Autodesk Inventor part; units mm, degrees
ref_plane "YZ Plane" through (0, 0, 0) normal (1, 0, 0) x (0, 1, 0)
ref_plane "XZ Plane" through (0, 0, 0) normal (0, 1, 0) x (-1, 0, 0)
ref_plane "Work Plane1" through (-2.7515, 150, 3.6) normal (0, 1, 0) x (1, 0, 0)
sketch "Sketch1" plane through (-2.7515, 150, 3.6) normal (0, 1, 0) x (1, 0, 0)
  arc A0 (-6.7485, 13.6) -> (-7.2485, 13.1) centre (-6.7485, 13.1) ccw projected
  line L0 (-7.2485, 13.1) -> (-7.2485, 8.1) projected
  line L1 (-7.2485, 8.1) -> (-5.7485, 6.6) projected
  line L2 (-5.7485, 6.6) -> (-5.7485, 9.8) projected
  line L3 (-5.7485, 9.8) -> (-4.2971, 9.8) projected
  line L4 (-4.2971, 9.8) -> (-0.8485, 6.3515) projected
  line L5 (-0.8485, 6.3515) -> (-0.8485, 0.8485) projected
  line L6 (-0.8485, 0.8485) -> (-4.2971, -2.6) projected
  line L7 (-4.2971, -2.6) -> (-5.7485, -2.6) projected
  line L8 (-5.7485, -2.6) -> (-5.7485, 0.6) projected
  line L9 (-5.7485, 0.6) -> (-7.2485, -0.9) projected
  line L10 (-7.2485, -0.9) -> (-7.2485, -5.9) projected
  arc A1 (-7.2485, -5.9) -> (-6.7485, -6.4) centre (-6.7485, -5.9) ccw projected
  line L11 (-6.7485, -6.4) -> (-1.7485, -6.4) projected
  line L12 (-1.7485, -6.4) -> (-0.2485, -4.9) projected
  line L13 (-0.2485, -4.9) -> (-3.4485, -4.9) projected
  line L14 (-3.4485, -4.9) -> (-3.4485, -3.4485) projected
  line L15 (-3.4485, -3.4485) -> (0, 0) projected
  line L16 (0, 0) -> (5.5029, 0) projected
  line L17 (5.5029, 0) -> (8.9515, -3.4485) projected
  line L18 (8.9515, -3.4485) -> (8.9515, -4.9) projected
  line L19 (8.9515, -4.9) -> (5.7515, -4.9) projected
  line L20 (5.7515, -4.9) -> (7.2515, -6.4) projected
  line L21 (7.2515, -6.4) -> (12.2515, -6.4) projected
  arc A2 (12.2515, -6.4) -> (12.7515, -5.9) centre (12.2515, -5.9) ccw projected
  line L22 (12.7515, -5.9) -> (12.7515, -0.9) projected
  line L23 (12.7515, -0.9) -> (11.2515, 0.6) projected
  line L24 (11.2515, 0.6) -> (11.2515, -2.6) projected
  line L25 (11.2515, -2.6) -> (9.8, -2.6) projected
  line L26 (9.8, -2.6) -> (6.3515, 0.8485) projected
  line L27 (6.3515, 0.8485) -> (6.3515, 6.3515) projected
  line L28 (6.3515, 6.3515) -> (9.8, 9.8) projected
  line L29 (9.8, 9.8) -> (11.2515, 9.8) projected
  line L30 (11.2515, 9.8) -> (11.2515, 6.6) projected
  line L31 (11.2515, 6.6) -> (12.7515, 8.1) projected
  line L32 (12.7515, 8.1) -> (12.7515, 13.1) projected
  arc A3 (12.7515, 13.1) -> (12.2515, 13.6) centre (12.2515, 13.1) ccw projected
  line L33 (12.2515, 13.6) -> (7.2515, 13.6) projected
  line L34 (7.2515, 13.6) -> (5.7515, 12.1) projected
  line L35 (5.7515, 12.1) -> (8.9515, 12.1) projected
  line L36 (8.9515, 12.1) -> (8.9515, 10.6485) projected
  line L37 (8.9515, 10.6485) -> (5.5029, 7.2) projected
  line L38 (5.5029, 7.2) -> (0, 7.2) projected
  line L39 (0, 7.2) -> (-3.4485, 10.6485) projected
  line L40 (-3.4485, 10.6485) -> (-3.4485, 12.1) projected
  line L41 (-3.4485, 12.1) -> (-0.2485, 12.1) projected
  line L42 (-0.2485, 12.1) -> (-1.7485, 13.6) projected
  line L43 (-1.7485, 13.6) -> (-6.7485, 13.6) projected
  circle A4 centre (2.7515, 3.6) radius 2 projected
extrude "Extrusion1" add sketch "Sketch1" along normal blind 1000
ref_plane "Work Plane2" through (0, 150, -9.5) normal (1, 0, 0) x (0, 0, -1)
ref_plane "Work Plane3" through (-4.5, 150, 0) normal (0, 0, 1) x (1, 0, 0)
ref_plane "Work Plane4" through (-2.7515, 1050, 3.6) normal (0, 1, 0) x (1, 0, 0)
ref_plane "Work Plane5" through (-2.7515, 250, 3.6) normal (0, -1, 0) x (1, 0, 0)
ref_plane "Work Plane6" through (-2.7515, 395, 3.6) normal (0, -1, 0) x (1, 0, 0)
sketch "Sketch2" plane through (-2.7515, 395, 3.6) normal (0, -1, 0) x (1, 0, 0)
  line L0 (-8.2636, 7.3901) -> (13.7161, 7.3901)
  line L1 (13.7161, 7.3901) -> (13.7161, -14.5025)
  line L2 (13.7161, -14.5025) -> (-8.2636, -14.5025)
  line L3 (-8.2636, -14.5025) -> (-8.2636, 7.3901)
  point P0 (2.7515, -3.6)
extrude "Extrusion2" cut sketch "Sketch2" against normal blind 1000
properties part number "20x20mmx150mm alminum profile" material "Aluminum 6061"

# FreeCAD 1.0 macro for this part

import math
import FreeCAD as App
import Part
import Sketcher

V = App.Vector


def add_polygon(sketch, points):
    """Adds a closed chain of lines whose ends are joined by coincident constraints."""
    first, n = sketch.GeometryCount, len(points)
    for a, b in zip(points, points[1:] + points[:1]):
        sketch.addGeometry(Part.LineSegment(App.Vector(*a, 0), App.Vector(*b, 0)), False)
    for i in range(n):
        sketch.addConstraint(Sketcher.Constraint("Coincident", first + i, 2, first + (i + 1) % n, 1))

doc = App.newDocument("Part")
body = doc.addObject("PartDesign::Body", "Body")

sketch1 = body.newObject("Sketcher::SketchObject", "Sketch")
sketch1.AttachmentSupport = (doc.getObject("XZ_Plane"), [""])
sketch1.MapMode = "FlatFace"
sketch1.AttachmentOffset = App.Placement(V(0, 0, -150), App.Rotation())
sketch1.addGeometry(Part.LineSegment(V(-4.5, -10, 0), V(-9.5, -10, 0)), False)
sketch1.addGeometry(Part.ArcOfCircle(Part.Circle(V(-9.5, -9.5, 0), V(0, 0, 1), 0.5), math.radians(180), math.radians(270)), False)
sketch1.addGeometry(Part.LineSegment(V(-10, -9.5, 0), V(-10, -4.5, 0)), False)
sketch1.addGeometry(Part.LineSegment(V(-10, -4.5, 0), V(-8.5, -3, 0)), False)
sketch1.addGeometry(Part.LineSegment(V(-8.5, -3, 0), V(-8.5, -6.2, 0)), False)
sketch1.addGeometry(Part.LineSegment(V(-8.5, -6.2, 0), V(-7, -6.2, 0)), False)
sketch1.addGeometry(Part.LineSegment(V(-7, -6.2, 0), V(-3.6, -2.8, 0)), False)
sketch1.addGeometry(Part.LineSegment(V(-3.6, -2.8, 0), V(-3.6, 2.8, 0)), False)
sketch1.addGeometry(Part.LineSegment(V(-3.6, 2.8, 0), V(-7, 6.2, 0)), False)
sketch1.addGeometry(Part.LineSegment(V(-7, 6.2, 0), V(-8.5, 6.2, 0)), False)
sketch1.addGeometry(Part.LineSegment(V(-8.5, 6.2, 0), V(-8.5, 3, 0)), False)
sketch1.addGeometry(Part.LineSegment(V(-8.5, 3, 0), V(-10, 4.5, 0)), False)
sketch1.addGeometry(Part.LineSegment(V(-10, 4.5, 0), V(-10, 9.5, 0)), False)
sketch1.addGeometry(Part.ArcOfCircle(Part.Circle(V(-9.5, 9.5, 0), V(0, 0, 1), 0.5), math.radians(90), math.radians(180)), False)
sketch1.addGeometry(Part.LineSegment(V(-9.5, 10, 0), V(-4.5, 10, 0)), False)
sketch1.addGeometry(Part.LineSegment(V(-4.5, 10, 0), V(-3, 8.5, 0)), False)
sketch1.addGeometry(Part.LineSegment(V(-3, 8.5, 0), V(-6.2, 8.5, 0)), False)
sketch1.addGeometry(Part.LineSegment(V(-6.2, 8.5, 0), V(-6.2, 7, 0)), False)
sketch1.addGeometry(Part.LineSegment(V(-6.2, 7, 0), V(-2.8, 3.6, 0)), False)
sketch1.addGeometry(Part.LineSegment(V(-2.8, 3.6, 0), V(2.8, 3.6, 0)), False)
sketch1.addGeometry(Part.LineSegment(V(2.8, 3.6, 0), V(6.2, 7, 0)), False)
sketch1.addGeometry(Part.LineSegment(V(6.2, 7, 0), V(6.2, 8.5, 0)), False)
sketch1.addGeometry(Part.LineSegment(V(6.2, 8.5, 0), V(3, 8.5, 0)), False)
sketch1.addGeometry(Part.LineSegment(V(3, 8.5, 0), V(4.5, 10, 0)), False)
sketch1.addGeometry(Part.LineSegment(V(4.5, 10, 0), V(9.5, 10, 0)), False)
sketch1.addGeometry(Part.ArcOfCircle(Part.Circle(V(9.5, 9.5, 0), V(0, 0, 1), 0.5), math.radians(0), math.radians(90)), False)
sketch1.addGeometry(Part.LineSegment(V(10, 9.5, 0), V(10, 4.5, 0)), False)
sketch1.addGeometry(Part.LineSegment(V(10, 4.5, 0), V(8.5, 3, 0)), False)
sketch1.addGeometry(Part.LineSegment(V(8.5, 3, 0), V(8.5, 6.2, 0)), False)
sketch1.addGeometry(Part.LineSegment(V(8.5, 6.2, 0), V(7, 6.2, 0)), False)
sketch1.addGeometry(Part.LineSegment(V(7, 6.2, 0), V(3.6, 2.8, 0)), False)
sketch1.addGeometry(Part.LineSegment(V(3.6, 2.8, 0), V(3.6, -2.8, 0)), False)
sketch1.addGeometry(Part.LineSegment(V(3.6, -2.8, 0), V(7, -6.2, 0)), False)
sketch1.addGeometry(Part.LineSegment(V(7, -6.2, 0), V(8.5, -6.2, 0)), False)
sketch1.addGeometry(Part.LineSegment(V(8.5, -6.2, 0), V(8.5, -3, 0)), False)
sketch1.addGeometry(Part.LineSegment(V(8.5, -3, 0), V(10, -4.5, 0)), False)
sketch1.addGeometry(Part.LineSegment(V(10, -4.5, 0), V(10, -9.5, 0)), False)
sketch1.addGeometry(Part.ArcOfCircle(Part.Circle(V(9.5, -9.5, 0), V(0, 0, 1), 0.5), math.radians(-90), math.radians(0)), False)
sketch1.addGeometry(Part.LineSegment(V(9.5, -10, 0), V(4.5, -10, 0)), False)
sketch1.addGeometry(Part.LineSegment(V(4.5, -10, 0), V(3, -8.5, 0)), False)
sketch1.addGeometry(Part.LineSegment(V(3, -8.5, 0), V(6.2, -8.5, 0)), False)
sketch1.addGeometry(Part.LineSegment(V(6.2, -8.5, 0), V(6.2, -7, 0)), False)
sketch1.addGeometry(Part.LineSegment(V(6.2, -7, 0), V(2.8, -3.6, 0)), False)
sketch1.addGeometry(Part.LineSegment(V(2.8, -3.6, 0), V(-2.8, -3.6, 0)), False)
sketch1.addGeometry(Part.LineSegment(V(-2.8, -3.6, 0), V(-6.2, -7, 0)), False)
sketch1.addGeometry(Part.LineSegment(V(-6.2, -7, 0), V(-6.2, -8.5, 0)), False)
sketch1.addGeometry(Part.LineSegment(V(-6.2, -8.5, 0), V(-3, -8.5, 0)), False)
sketch1.addGeometry(Part.LineSegment(V(-3, -8.5, 0), V(-4.5, -10, 0)), False)
sketch1.addGeometry(Part.Circle(V(0, 0, 0), V(0, 0, 1), 2), False)
sketch1.addConstraint(Sketcher.Constraint("Tangent", 0, 2, 1, 2))
sketch1.addConstraint(Sketcher.Constraint("Tangent", 1, 1, 2, 1))
sketch1.addConstraint(Sketcher.Constraint("Coincident", 2, 2, 3, 1))
sketch1.addConstraint(Sketcher.Constraint("Coincident", 3, 2, 4, 1))
sketch1.addConstraint(Sketcher.Constraint("Coincident", 4, 2, 5, 1))
sketch1.addConstraint(Sketcher.Constraint("Coincident", 5, 2, 6, 1))
sketch1.addConstraint(Sketcher.Constraint("Coincident", 6, 2, 7, 1))
sketch1.addConstraint(Sketcher.Constraint("Coincident", 7, 2, 8, 1))
sketch1.addConstraint(Sketcher.Constraint("Coincident", 8, 2, 9, 1))
sketch1.addConstraint(Sketcher.Constraint("Coincident", 9, 2, 10, 1))
sketch1.addConstraint(Sketcher.Constraint("Coincident", 10, 2, 11, 1))
sketch1.addConstraint(Sketcher.Constraint("Coincident", 11, 2, 12, 1))
sketch1.addConstraint(Sketcher.Constraint("Tangent", 12, 2, 13, 2))
sketch1.addConstraint(Sketcher.Constraint("Tangent", 13, 1, 14, 1))
sketch1.addConstraint(Sketcher.Constraint("Coincident", 14, 2, 15, 1))
sketch1.addConstraint(Sketcher.Constraint("Coincident", 15, 2, 16, 1))
sketch1.addConstraint(Sketcher.Constraint("Coincident", 16, 2, 17, 1))
sketch1.addConstraint(Sketcher.Constraint("Coincident", 17, 2, 18, 1))
sketch1.addConstraint(Sketcher.Constraint("Coincident", 18, 2, 19, 1))
sketch1.addConstraint(Sketcher.Constraint("Coincident", 19, 2, 20, 1))
sketch1.addConstraint(Sketcher.Constraint("Coincident", 20, 2, 21, 1))
sketch1.addConstraint(Sketcher.Constraint("Coincident", 21, 2, 22, 1))
sketch1.addConstraint(Sketcher.Constraint("Coincident", 22, 2, 23, 1))
sketch1.addConstraint(Sketcher.Constraint("Coincident", 23, 2, 24, 1))
sketch1.addConstraint(Sketcher.Constraint("Tangent", 24, 2, 25, 2))
sketch1.addConstraint(Sketcher.Constraint("Tangent", 25, 1, 26, 1))
sketch1.addConstraint(Sketcher.Constraint("Coincident", 26, 2, 27, 1))
sketch1.addConstraint(Sketcher.Constraint("Coincident", 27, 2, 28, 1))
sketch1.addConstraint(Sketcher.Constraint("Coincident", 28, 2, 29, 1))
sketch1.addConstraint(Sketcher.Constraint("Coincident", 29, 2, 30, 1))
sketch1.addConstraint(Sketcher.Constraint("Coincident", 30, 2, 31, 1))
sketch1.addConstraint(Sketcher.Constraint("Coincident", 31, 2, 32, 1))
sketch1.addConstraint(Sketcher.Constraint("Coincident", 32, 2, 33, 1))
sketch1.addConstraint(Sketcher.Constraint("Coincident", 33, 2, 34, 1))
sketch1.addConstraint(Sketcher.Constraint("Coincident", 34, 2, 35, 1))
sketch1.addConstraint(Sketcher.Constraint("Coincident", 35, 2, 36, 1))
sketch1.addConstraint(Sketcher.Constraint("Tangent", 36, 2, 37, 2))
sketch1.addConstraint(Sketcher.Constraint("Tangent", 37, 1, 38, 1))
sketch1.addConstraint(Sketcher.Constraint("Coincident", 38, 2, 39, 1))
sketch1.addConstraint(Sketcher.Constraint("Coincident", 39, 2, 40, 1))
sketch1.addConstraint(Sketcher.Constraint("Coincident", 40, 2, 41, 1))
sketch1.addConstraint(Sketcher.Constraint("Coincident", 41, 2, 42, 1))
sketch1.addConstraint(Sketcher.Constraint("Coincident", 42, 2, 43, 1))
sketch1.addConstraint(Sketcher.Constraint("Coincident", 43, 2, 44, 1))
sketch1.addConstraint(Sketcher.Constraint("Coincident", 44, 2, 45, 1))
sketch1.addConstraint(Sketcher.Constraint("Coincident", 45, 2, 46, 1))
sketch1.addConstraint(Sketcher.Constraint("Coincident", 46, 2, 47, 1))
sketch1.addConstraint(Sketcher.Constraint("Coincident", 47, 2, 0, 1))
sketch1.addConstraint(Sketcher.Constraint("Horizontal", 0))
sketch1.addConstraint(Sketcher.Constraint("Vertical", 2))
sketch1.addConstraint(Sketcher.Constraint("Vertical", 4))
sketch1.addConstraint(Sketcher.Constraint("Horizontal", 5))
sketch1.addConstraint(Sketcher.Constraint("Vertical", 7))
sketch1.addConstraint(Sketcher.Constraint("Horizontal", 9))
sketch1.addConstraint(Sketcher.Constraint("Vertical", 10))
sketch1.addConstraint(Sketcher.Constraint("Vertical", 12))
sketch1.addConstraint(Sketcher.Constraint("Horizontal", 14))
sketch1.addConstraint(Sketcher.Constraint("Horizontal", 16))
sketch1.addConstraint(Sketcher.Constraint("Vertical", 17))
sketch1.addConstraint(Sketcher.Constraint("Horizontal", 19))
sketch1.addConstraint(Sketcher.Constraint("Vertical", 21))
sketch1.addConstraint(Sketcher.Constraint("Horizontal", 22))
sketch1.addConstraint(Sketcher.Constraint("Horizontal", 24))
sketch1.addConstraint(Sketcher.Constraint("Vertical", 26))
sketch1.addConstraint(Sketcher.Constraint("Vertical", 28))
sketch1.addConstraint(Sketcher.Constraint("Horizontal", 29))
sketch1.addConstraint(Sketcher.Constraint("Vertical", 31))
sketch1.addConstraint(Sketcher.Constraint("Horizontal", 33))
sketch1.addConstraint(Sketcher.Constraint("Vertical", 34))
sketch1.addConstraint(Sketcher.Constraint("Vertical", 36))
sketch1.addConstraint(Sketcher.Constraint("Horizontal", 38))
sketch1.addConstraint(Sketcher.Constraint("Horizontal", 40))
sketch1.addConstraint(Sketcher.Constraint("Vertical", 41))
sketch1.addConstraint(Sketcher.Constraint("Horizontal", 43))
sketch1.addConstraint(Sketcher.Constraint("Vertical", 45))
sketch1.addConstraint(Sketcher.Constraint("Horizontal", 46))
sketch1.addConstraint(Sketcher.Constraint("Coincident", 48, 3, -1, 1))
sketch1.addConstraint(Sketcher.Constraint("Equal", 1, 13))
sketch1.addConstraint(Sketcher.Constraint("Equal", 13, 25))
sketch1.addConstraint(Sketcher.Constraint("Equal", 25, 37))
sketch1.addConstraint(Sketcher.Constraint("Symmetric", 1, 3, 25, 3, -1, 1))
sketch1.addConstraint(Sketcher.Constraint("Symmetric", 13, 3, 37, 3, -1, 1))
sketch1.addConstraint(Sketcher.Constraint("Symmetric", 3, 2, 27, 2, -1, 1))
sketch1.addConstraint(Sketcher.Constraint("Symmetric", 5, 2, 29, 2, -1, 1))
sketch1.addConstraint(Sketcher.Constraint("Symmetric", 6, 2, 30, 2, -1, 1))
sketch1.addConstraint(Sketcher.Constraint("Symmetric", 8, 2, 32, 2, -1, 1))
sketch1.addConstraint(Sketcher.Constraint("Symmetric", 10, 2, 34, 2, -1, 1))
sketch1.addConstraint(Sketcher.Constraint("Symmetric", 15, 2, 39, 2, -1, 1))
sketch1.addConstraint(Sketcher.Constraint("Symmetric", 17, 2, 41, 2, -1, 1))
sketch1.addConstraint(Sketcher.Constraint("Symmetric", 18, 2, 42, 2, -1, 1))
sketch1.addConstraint(Sketcher.Constraint("Symmetric", 20, 2, 44, 2, -1, 1))
sketch1.addConstraint(Sketcher.Constraint("Symmetric", 22, 2, 46, 2, -1, 1))
sketch1.addConstraint(Sketcher.Constraint("Symmetric", 13, 3, 25, 3, -2))
sketch1.addConstraint(Sketcher.Constraint("Symmetric", 17, 2, 20, 2, -2))
sketch1.addConstraint(Sketcher.Constraint("Symmetric", 15, 2, 22, 2, -2))
sketch1.addConstraint(Sketcher.Constraint("Symmetric", 10, 2, 27, 2, -2))
sketch1.addConstraint(Sketcher.Constraint("Symmetric", 8, 2, 29, 2, -2))
sketch1.addConstraint(Sketcher.Constraint("Parallel", 3, 6))
sketch1.addConstraint(Sketcher.Constraint("Perpendicular", 6, 8))
sketch1.addConstraint(Sketcher.Constraint("Parallel", 8, 11))
sketch1.addConstraint(Sketcher.Constraint("Parallel", 11, 15))
sketch1.addConstraint(Sketcher.Constraint("Parallel", 15, 18))
sketch1.addConstraint(Sketcher.Constraint("Perpendicular", 18, 20))
sketch1.addConstraint(Sketcher.Constraint("Parallel", 20, 23))
sketch1.addConstraint(Sketcher.Constraint("Parallel", 23, 27))
sketch1.addConstraint(Sketcher.Constraint("Perpendicular", 30, 32))
sketch1.addConstraint(Sketcher.Constraint("Parallel", 32, 35))
sketch1.addConstraint(Sketcher.Constraint("Parallel", 35, 39))
sketch1.addConstraint(Sketcher.Constraint("Perpendicular", 42, 44))
sketch1.addConstraint(Sketcher.Constraint("Parallel", 44, 47))
sketch1.addConstraint(Sketcher.Constraint("Horizontal", 11, 2, 26, 2))
sketch1.addConstraint(Sketcher.Constraint("Equal", 38, 2))
sketch1.addConstraint(Sketcher.Constraint("Equal", 46, 4))
sketch1.addConstraint(Sketcher.Constraint("Equal", 43, 7))
sketch1.addConstraint(Sketcher.Constraint("Equal", 33, 17))
sketch1.addConstraint(Sketcher.Constraint("Equal", 11, 15))
sketch1.addConstraint(Sketcher.Constraint("Equal", 8, 18))
sketch1.addConstraint(Sketcher.Constraint("Diameter", 48, 4.0))
sketch1.addConstraint(Sketcher.Constraint("Radius", 1, 0.5))
sketch1.addConstraint(Sketcher.Constraint("DistanceX", 0, 2, 0, 1, 5.0))
sketch1.addConstraint(Sketcher.Constraint("DistanceX", 16, 2, 16, 1, 3.2))
sketch1.addConstraint(Sketcher.Constraint("DistanceY", 0, 2, -1, 1, 10.0))
sketch1.addConstraint(Sketcher.Constraint("DistanceY", 3, 2, -1, 1, 3.0))
sketch1.addConstraint(Sketcher.Constraint("DistanceX", 6, 2, -1, 1, 3.6))
sketch1.addConstraint(Sketcher.Constraint("DistanceX", 19, 1, 19, 2, 5.503))
pad1 = body.newObject("PartDesign::Pad", "Pad")
pad1.Profile = sketch1
pad1.Length = 1000
pad1.Reversed = True

sketch2 = body.newObject("Sketcher::SketchObject", "Sketch001")
sketch2.AttachmentSupport = (doc.getObject("XZ_Plane"), [""])
sketch2.MapMode = "FlatFace"
sketch2.AttachmentOffset = App.Placement(V(0, 0, -395), App.Rotation())
add_polygon(sketch2, [(11, 11), (-11, 11), (-11, -11), (11, -11)])
sketch2.addConstraint(Sketcher.Constraint("Horizontal", 0))
sketch2.addConstraint(Sketcher.Constraint("Vertical", 1))
sketch2.addConstraint(Sketcher.Constraint("Horizontal", 2))
sketch2.addConstraint(Sketcher.Constraint("Vertical", 3))
sketch2.addConstraint(Sketcher.Constraint("DistanceY", -1, 1, 0, 2, 10.99))
sketch2.addConstraint(Sketcher.Constraint("DistanceX", 0, 2, 0, 1, 21.9797))
sketch2.addConstraint(Sketcher.Constraint("DistanceY", 1, 2, 1, 1, 21.8926))
sketch2.addConstraint(Sketcher.Constraint("DistanceX", 0, 2, -1, 1, 11.015))
pocket1 = body.newObject("PartDesign::Pocket", "Pocket")
pocket1.Profile = sketch2
pocket1.Length = 1000

doc.recompute()
